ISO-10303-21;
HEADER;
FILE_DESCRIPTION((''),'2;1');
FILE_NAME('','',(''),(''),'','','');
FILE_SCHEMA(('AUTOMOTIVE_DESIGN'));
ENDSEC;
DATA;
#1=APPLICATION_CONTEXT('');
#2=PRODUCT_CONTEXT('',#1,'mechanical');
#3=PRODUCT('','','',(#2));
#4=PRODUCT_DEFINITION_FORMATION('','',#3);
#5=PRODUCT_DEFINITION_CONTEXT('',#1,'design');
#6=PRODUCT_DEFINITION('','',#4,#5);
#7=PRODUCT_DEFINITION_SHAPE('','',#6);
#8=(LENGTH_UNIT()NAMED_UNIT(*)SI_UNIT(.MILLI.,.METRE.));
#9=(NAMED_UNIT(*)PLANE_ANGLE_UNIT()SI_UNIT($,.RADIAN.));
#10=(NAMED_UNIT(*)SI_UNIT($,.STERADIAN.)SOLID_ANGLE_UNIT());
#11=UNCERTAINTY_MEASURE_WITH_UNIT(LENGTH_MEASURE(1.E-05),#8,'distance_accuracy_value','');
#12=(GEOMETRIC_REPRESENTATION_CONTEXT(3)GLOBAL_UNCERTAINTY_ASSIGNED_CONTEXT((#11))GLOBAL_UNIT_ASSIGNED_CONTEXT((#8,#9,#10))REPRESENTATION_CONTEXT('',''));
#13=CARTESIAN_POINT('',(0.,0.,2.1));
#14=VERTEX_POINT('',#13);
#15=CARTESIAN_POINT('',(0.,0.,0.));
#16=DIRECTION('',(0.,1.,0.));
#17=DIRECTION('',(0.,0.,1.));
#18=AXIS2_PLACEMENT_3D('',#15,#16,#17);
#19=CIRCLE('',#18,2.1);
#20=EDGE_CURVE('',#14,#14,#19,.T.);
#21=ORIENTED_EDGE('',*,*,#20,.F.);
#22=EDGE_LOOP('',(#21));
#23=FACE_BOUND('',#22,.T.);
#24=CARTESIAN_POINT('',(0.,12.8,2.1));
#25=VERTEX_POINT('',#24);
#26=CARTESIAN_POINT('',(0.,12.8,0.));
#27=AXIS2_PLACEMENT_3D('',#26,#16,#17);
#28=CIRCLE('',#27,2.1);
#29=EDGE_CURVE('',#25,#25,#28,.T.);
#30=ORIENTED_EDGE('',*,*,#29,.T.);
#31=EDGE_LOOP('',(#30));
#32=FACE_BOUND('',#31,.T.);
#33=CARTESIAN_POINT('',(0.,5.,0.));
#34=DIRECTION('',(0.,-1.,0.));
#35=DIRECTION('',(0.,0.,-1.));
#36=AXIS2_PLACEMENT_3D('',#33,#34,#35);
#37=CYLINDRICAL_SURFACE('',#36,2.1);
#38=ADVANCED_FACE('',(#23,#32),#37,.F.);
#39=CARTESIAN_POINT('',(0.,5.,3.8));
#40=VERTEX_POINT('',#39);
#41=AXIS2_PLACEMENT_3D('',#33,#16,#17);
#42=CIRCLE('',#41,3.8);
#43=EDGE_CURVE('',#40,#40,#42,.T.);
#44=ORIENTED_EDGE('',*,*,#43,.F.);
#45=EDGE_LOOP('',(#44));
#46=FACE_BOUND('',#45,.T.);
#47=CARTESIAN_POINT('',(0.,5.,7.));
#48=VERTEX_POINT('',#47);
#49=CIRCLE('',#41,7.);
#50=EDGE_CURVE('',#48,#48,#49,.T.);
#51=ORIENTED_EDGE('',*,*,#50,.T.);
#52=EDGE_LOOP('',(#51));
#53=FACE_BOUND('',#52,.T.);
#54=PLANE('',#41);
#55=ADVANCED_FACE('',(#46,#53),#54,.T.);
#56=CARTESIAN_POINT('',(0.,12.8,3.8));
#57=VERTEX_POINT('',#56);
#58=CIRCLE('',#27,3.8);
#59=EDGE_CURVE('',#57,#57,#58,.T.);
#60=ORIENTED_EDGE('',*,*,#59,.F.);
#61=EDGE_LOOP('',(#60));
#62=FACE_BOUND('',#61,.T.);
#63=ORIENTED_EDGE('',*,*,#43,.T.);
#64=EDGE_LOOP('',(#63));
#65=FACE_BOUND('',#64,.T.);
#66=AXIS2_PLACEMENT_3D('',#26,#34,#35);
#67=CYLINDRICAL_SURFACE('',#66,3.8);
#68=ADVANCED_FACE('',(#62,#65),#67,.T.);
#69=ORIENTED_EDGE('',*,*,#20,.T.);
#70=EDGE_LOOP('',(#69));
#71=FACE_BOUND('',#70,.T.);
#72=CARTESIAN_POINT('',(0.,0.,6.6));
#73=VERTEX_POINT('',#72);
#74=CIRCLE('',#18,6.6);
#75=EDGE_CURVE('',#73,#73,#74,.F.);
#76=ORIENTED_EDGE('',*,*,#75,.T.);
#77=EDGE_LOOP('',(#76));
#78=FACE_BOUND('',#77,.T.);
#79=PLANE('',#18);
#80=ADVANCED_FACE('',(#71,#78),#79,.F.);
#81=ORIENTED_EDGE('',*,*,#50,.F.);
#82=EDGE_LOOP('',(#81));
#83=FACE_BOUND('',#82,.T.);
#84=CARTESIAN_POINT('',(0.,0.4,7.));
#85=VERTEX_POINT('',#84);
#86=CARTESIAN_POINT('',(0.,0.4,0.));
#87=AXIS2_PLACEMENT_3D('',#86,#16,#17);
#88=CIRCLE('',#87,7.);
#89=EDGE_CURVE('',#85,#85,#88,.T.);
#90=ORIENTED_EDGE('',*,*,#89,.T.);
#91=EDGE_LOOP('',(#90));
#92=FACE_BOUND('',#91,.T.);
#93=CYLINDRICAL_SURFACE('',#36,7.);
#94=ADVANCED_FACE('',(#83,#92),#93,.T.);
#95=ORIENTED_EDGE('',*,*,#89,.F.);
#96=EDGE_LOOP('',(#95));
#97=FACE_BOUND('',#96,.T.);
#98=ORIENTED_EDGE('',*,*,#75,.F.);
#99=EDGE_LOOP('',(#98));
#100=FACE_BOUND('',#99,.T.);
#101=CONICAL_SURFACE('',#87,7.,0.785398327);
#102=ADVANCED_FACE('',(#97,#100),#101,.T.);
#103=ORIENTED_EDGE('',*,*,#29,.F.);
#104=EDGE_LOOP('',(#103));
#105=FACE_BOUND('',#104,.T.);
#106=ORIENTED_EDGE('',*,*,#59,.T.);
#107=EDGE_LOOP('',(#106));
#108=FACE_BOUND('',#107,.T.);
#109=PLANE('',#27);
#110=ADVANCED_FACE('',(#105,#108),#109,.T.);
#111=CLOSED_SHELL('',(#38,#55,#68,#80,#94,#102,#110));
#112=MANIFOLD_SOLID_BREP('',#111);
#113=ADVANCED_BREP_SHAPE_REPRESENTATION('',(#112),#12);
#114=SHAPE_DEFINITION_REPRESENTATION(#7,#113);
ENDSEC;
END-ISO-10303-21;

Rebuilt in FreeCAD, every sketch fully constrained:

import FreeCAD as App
import Part
import Sketcher


def edges_at(feature, points):
    """Names of the edges that pass closest to the given points."""
    edges = feature.Shape.Edges
    near = lambda p: min(range(len(edges)), key=lambda i: edges[i].distToShape(Part.Vertex(*p))[0])
    return sorted({f"Edge{near(p) + 1}" for p in points})

doc = App.newDocument("Part")
body = doc.addObject("PartDesign::Body", "Body")

# Sketch on XZ plane
sketch1 = body.newObject("Sketcher::SketchObject", "Sketch")
sketch1.AttachmentSupport = (doc.getObject("XZ_Plane"), [""])
sketch1.MapMode = "FlatFace"
sketch1.addGeometry([
    Part.Circle(App.Vector(0, 0, 0), App.Vector(0, 0, 1), 7),
    Part.Circle(App.Vector(0, 0, 0), App.Vector(0, 0, 1), 2.1),
], False)
sketch1.addConstraint([
    Sketcher.Constraint("Coincident", 0, 3, -1, 1),
    Sketcher.Constraint("Coincident", 1, 3, -1, 1),
    Sketcher.Constraint("Diameter", 0, 14.0),
    Sketcher.Constraint("Diameter", 1, 4.2),
])
pad1 = body.newObject("PartDesign::Pad", "Pad")
pad1.Profile = sketch1
pad1.Length = 5
pad1.Reversed = True

# Sketch on XZ plane
sketch2 = body.newObject("Sketcher::SketchObject", "Sketch001")
sketch2.AttachmentSupport = (doc.getObject("XZ_Plane"), [""])
sketch2.MapMode = "FlatFace"
sketch2.AttachmentOffset = App.Placement(App.Vector(0, 0, -5), App.Rotation())
sketch2.addGeometry([
    Part.Circle(App.Vector(0, 0, 0), App.Vector(0, 0, 1), 3.8),
    Part.Circle(App.Vector(0, 0, 0), App.Vector(0, 0, 1), 2.1),
], False)
sketch2.addConstraint([
    Sketcher.Constraint("Coincident", 0, 3, -1, 1),
    Sketcher.Constraint("Coincident", 1, 3, -1, 1),
    Sketcher.Constraint("Diameter", 0, 7.6),
    Sketcher.Constraint("Diameter", 1, 4.2),
])
pad2 = body.newObject("PartDesign::Pad", "Pad001")
pad2.Profile = sketch2
pad2.Length = 7.8
pad2.Reversed = True
doc.recompute()

chamfer = body.newObject("PartDesign::Chamfer", "Chamfer")
chamfer.Base = (pad2, edges_at(pad2, [(0, 0, -7)]))
chamfer.ChamferType = "Two distances"
chamfer.Size = 0.4
chamfer.Size2 = 0.4

doc.recompute()
